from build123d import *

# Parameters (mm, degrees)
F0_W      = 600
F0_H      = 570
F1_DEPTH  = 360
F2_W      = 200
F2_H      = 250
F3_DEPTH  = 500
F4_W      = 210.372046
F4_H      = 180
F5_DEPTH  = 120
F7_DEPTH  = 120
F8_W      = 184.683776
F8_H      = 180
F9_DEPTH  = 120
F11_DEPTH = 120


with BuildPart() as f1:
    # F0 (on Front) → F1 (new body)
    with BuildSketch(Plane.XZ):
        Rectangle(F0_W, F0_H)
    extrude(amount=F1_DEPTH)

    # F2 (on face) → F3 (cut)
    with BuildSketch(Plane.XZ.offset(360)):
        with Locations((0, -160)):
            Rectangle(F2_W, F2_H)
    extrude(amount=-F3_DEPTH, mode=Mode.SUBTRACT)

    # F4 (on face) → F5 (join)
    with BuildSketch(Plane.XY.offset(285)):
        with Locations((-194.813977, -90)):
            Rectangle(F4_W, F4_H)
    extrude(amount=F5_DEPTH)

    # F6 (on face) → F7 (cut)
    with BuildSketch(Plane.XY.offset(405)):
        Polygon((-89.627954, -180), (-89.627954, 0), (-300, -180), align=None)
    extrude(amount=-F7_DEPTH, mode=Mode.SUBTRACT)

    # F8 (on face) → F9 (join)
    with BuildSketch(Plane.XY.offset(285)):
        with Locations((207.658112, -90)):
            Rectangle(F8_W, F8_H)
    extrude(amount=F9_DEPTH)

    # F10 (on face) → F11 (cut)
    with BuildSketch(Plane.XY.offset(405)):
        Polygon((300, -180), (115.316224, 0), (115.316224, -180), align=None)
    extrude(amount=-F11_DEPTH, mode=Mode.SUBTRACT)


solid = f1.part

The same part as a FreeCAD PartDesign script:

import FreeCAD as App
import Part
import Sketcher
from FreeCAD import Vector
Q = App.Units.Quantity


def add_polygon(sketch, points):
    """Adds a closed chain of lines whose ends are joined by coincident constraints."""
    first, n = sketch.GeometryCount, len(points)
    for a, b in zip(points, points[1:] + points[:1]):
        sketch.addGeometry(Part.LineSegment(App.Vector(*a, 0), App.Vector(*b, 0)), False)
    for i in range(n):
        sketch.addConstraint(Sketcher.Constraint("Coincident", first + i, 2, first + (i + 1) % n, 1))

doc = App.newDocument("Part")
params = doc.addObject("Spreadsheet::Sheet", "Params")
for row, (alias, value) in enumerate([
    ("sketch1_width", "600 mm"),
    ("sketch1_height", "570 mm"),
    ("pad1_length", "360 mm"),
    ("sketch2_width", "200 mm"),
    ("sketch2_height", "250 mm"),
    ("pocket1_length", "500 mm"),
    ("sketch3_height", "180 mm"),
    ("pad2_length", "120 mm"),
    ("sketch4_height", "180 mm"),
    ("pocket2_length", "120 mm"),
    ("sketch5_height", "180 mm"),
    ("pad3_length", "120 mm"),
    ("sketch6_height", "180 mm"),
    ("pocket3_length", "120 mm"),
], start=1):
    params.set(f"A{row}", alias)
    params.set(f"B{row}", "=" + value)
    params.setAlias(f"B{row}", alias)

body = doc.addObject("PartDesign::Body", "Body")

sketch1 = body.newObject("Sketcher::SketchObject", "Sketch")
sketch1.AttachmentSupport = (doc.getObject("XZ_Plane"), [""])
sketch1.MapMode = "FlatFace"
add_polygon(sketch1, [(-300, 285), (-300, -285), (300, -285), (300, 285)])
sketch1.addConstraint([
    Sketcher.Constraint("Vertical", 0),
    Sketcher.Constraint("Horizontal", 1),
    Sketcher.Constraint("Vertical", 2),
    Sketcher.Constraint("Horizontal", 3),
    Sketcher.Constraint("Symmetric", 0, 2, 2, 2, -1, 1),
    Sketcher.Constraint("DistanceX", 1, 1, 1, 2, Q("600 mm")),
    Sketcher.Constraint("DistanceY", 0, 2, 0, 1, Q("570 mm")),
])
sketch1.setExpression("Constraints[9]", "Params.sketch1_width")
sketch1.setExpression("Constraints[10]", "Params.sketch1_height")
pad1 = body.newObject("PartDesign::Pad", "Pad")
pad1.Profile = sketch1
pad1.setExpression("Length", "Params.pad1_length")

sketch2 = body.newObject("Sketcher::SketchObject", "Sketch001")
sketch2.AttachmentSupport = (doc.getObject("XZ_Plane"), [""])
sketch2.MapMode = "FlatFace"
sketch2.AttachmentOffset = App.Placement(Vector(0, 0, 360), App.Rotation())
add_polygon(sketch2, [(-100, -35), (-100, -285), (100, -285), (100, -35)])
sketch2.addConstraint([
    Sketcher.Constraint("Vertical", 0),
    Sketcher.Constraint("Horizontal", 1),
    Sketcher.Constraint("Vertical", 2),
    Sketcher.Constraint("Horizontal", 3),
    Sketcher.Constraint("DistanceX", 1, 1, 1, 2, Q("200 mm")),
    Sketcher.Constraint("DistanceY", 0, 2, 0, 1, Q("250 mm")),
    Sketcher.Constraint("DistanceX", 0, 2, -1, 1, Q("100 mm")),
    Sketcher.Constraint("DistanceY", 0, 2, -1, 1, Q("285 mm")),
])
sketch2.setExpression("Constraints[8]", "Params.sketch2_width")
sketch2.setExpression("Constraints[9]", "Params.sketch2_height")
pocket1 = body.newObject("PartDesign::Pocket", "Pocket")
pocket1.Profile = sketch2
pocket1.setExpression("Length", "Params.pocket1_length")

sketch3 = body.newObject("Sketcher::SketchObject", "Sketch002")
sketch3.AttachmentSupport = (doc.getObject("XY_Plane"), [""])
sketch3.MapMode = "FlatFace"
sketch3.AttachmentOffset = App.Placement(Vector(0, 0, 285), App.Rotation())
add_polygon(sketch3, [(-300, 0), (-300, -180), (-90, -180), (-90, 0)])
sketch3.addConstraint([
    Sketcher.Constraint("Vertical", 0),
    Sketcher.Constraint("Horizontal", 1),
    Sketcher.Constraint("Vertical", 2),
    Sketcher.Constraint("Horizontal", 3),
    Sketcher.Constraint("PointOnObject", 2, 2, -1),
    Sketcher.Constraint("DistanceY", 0, 2, 0, 1, Q("180 mm")),
    Sketcher.Constraint("DistanceX", 0, 2, -1, 1, Q("300 mm")),
    Sketcher.Constraint("DistanceX", 1, 1, 1, 2, Q("210.372046 mm")),
])
sketch3.setExpression("Constraints[9]", "Params.sketch3_height")
pad2 = body.newObject("PartDesign::Pad", "Pad001")
pad2.Profile = sketch3
pad2.setExpression("Length", "Params.pad2_length")

sketch4 = body.newObject("Sketcher::SketchObject", "Sketch003")
sketch4.AttachmentSupport = (doc.getObject("XY_Plane"), [""])
sketch4.MapMode = "FlatFace"
sketch4.AttachmentOffset = App.Placement(Vector(0, 0, 405), App.Rotation())
add_polygon(sketch4, [(-90, -180), (-90, 0), (-300, -180)])
sketch4.addConstraint([
    Sketcher.Constraint("Vertical", 0),
    Sketcher.Constraint("Horizontal", 2),
    Sketcher.Constraint("PointOnObject", 0, 2, -1),
    Sketcher.Constraint("DistanceY", 0, 1, 0, 2, Q("180 mm")),
    Sketcher.Constraint("DistanceX", 1, 2, -1, 1, Q("300 mm")),
    Sketcher.Constraint("DistanceX", 2, 1, 2, 2, Q("210.372046 mm")),
])
sketch4.setExpression("Constraints[6]", "Params.sketch4_height")
pocket2 = body.newObject("PartDesign::Pocket", "Pocket001")
pocket2.Profile = sketch4
pocket2.setExpression("Length", "Params.pocket2_length")

sketch5 = body.newObject("Sketcher::SketchObject", "Sketch004")
sketch5.AttachmentSupport = (doc.getObject("XY_Plane"), [""])
sketch5.MapMode = "FlatFace"
sketch5.AttachmentOffset = App.Placement(Vector(0, 0, 285), App.Rotation())
add_polygon(sketch5, [(115, 0), (115, -180), (300, -180), (300, 0)])
sketch5.addConstraint([
    Sketcher.Constraint("Vertical", 0),
    Sketcher.Constraint("Horizontal", 1),
    Sketcher.Constraint("Vertical", 2),
    Sketcher.Constraint("Horizontal", 3),
    Sketcher.Constraint("PointOnObject", 2, 2, -1),
    Sketcher.Constraint("DistanceY", 0, 2, 0, 1, Q("180 mm")),
    Sketcher.Constraint("DistanceX", -1, 1, 1, 2, Q("300 mm")),
    Sketcher.Constraint("DistanceX", 1, 1, 1, 2, Q("184.683776 mm")),
])
sketch5.setExpression("Constraints[9]", "Params.sketch5_height")
pad3 = body.newObject("PartDesign::Pad", "Pad002")
pad3.Profile = sketch5
pad3.setExpression("Length", "Params.pad3_length")

sketch6 = body.newObject("Sketcher::SketchObject", "Sketch005")
sketch6.AttachmentSupport = (doc.getObject("XY_Plane"), [""])
sketch6.MapMode = "FlatFace"
sketch6.AttachmentOffset = App.Placement(Vector(0, 0, 405), App.Rotation())
add_polygon(sketch6, [(300, -180), (115, 0), (115, -180)])
sketch6.addConstraint([
    Sketcher.Constraint("Vertical", 1),
    Sketcher.Constraint("Horizontal", 2),
    Sketcher.Constraint("PointOnObject", 0, 2, -1),
    Sketcher.Constraint("DistanceY", 1, 2, 1, 1, Q("180 mm")),
    Sketcher.Constraint("DistanceX", -1, 1, 2, 2, Q("300 mm")),
    Sketcher.Constraint("Distance", 0, Q("257.891638 mm")),
])
sketch6.setExpression("Constraints[6]", "Params.sketch6_height")
pocket3 = body.newObject("PartDesign::Pocket", "Pocket002")
pocket3.Profile = sketch6
pocket3.setExpression("Length", "Params.pocket3_length")

doc.recompute()
